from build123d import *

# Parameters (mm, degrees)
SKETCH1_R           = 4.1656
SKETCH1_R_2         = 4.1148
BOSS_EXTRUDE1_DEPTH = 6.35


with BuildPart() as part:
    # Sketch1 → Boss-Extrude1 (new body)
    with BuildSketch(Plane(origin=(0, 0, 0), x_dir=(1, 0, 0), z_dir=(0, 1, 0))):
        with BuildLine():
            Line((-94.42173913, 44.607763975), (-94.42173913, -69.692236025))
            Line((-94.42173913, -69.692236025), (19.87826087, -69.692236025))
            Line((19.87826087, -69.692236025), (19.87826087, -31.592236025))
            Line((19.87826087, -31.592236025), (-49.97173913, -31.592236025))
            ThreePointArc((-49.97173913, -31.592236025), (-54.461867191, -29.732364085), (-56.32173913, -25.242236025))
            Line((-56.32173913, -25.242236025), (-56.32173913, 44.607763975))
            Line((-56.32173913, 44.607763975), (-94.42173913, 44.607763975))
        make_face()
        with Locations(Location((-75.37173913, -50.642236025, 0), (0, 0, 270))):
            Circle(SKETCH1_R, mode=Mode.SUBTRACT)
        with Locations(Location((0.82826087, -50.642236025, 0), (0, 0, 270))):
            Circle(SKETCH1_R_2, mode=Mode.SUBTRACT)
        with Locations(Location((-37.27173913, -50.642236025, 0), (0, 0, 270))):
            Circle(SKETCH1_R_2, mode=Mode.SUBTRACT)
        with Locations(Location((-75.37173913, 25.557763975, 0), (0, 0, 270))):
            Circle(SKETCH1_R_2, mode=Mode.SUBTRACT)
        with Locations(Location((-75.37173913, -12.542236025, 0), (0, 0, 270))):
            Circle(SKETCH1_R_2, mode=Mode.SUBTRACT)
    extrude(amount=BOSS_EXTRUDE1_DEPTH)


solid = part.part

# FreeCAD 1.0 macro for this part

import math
import FreeCAD as App
import Part
import Sketcher

V = App.Vector
Q = App.Units.Quantity

doc = App.newDocument("Part")
body = doc.addObject("PartDesign::Body", "Body")

sketch1 = body.newObject("Sketcher::SketchObject", "Sketch")
sketch1.AttachmentSupport = (doc.getObject("XZ_Plane"), [""])
sketch1.MapMode = "FlatFace"
sketch1.addGeometry(Part.LineSegment(V(-94.4, -44.6, 0), V(-94.4, 69.7, 0)), False)
sketch1.addGeometry(Part.LineSegment(V(-94.4, 69.7, 0), V(19.9, 69.7, 0)), False)
sketch1.addGeometry(Part.LineSegment(V(19.9, 69.7, 0), V(19.9, 31.6, 0)), False)
sketch1.addGeometry(Part.LineSegment(V(19.9, 31.6, 0), V(-50, 31.6, 0)), False)
sketch1.addGeometry(Part.ArcOfCircle(Part.Circle(V(-50, 25.2, 0), V(0, 0, 1), 6.3), math.radians(90), math.radians(180)), False)
sketch1.addGeometry(Part.LineSegment(V(-56.3, 25.2, 0), V(-56.3, -44.6, 0)), False)
sketch1.addGeometry(Part.LineSegment(V(-56.3, -44.6, 0), V(-94.4, -44.6, 0)), False)
sketch1.addGeometry(Part.Circle(V(-75.4, 50.6, 0), V(0, 0, 1), 4.2), False)
sketch1.addGeometry(Part.Circle(V(-37.3, 50.6, 0), V(0, 0, 1), 4.1), False)
sketch1.addGeometry(Part.Circle(V(0.8, 50.6, 0), V(0, 0, 1), 4.1), False)
sketch1.addGeometry(Part.Circle(V(-75.4, 12.5, 0), V(0, 0, 1), 4.1), False)
sketch1.addGeometry(Part.Circle(V(-75.4, -25.6, 0), V(0, 0, 1), 4.1), False)
sketch1.addConstraint(Sketcher.Constraint("Coincident", 0, 2, 1, 1))
sketch1.addConstraint(Sketcher.Constraint("Coincident", 1, 2, 2, 1))
sketch1.addConstraint(Sketcher.Constraint("Coincident", 2, 2, 3, 1))
sketch1.addConstraint(Sketcher.Constraint("Tangent", 3, 2, 4, 1))
sketch1.addConstraint(Sketcher.Constraint("Tangent", 4, 2, 5, 1))
sketch1.addConstraint(Sketcher.Constraint("Coincident", 5, 2, 6, 1))
sketch1.addConstraint(Sketcher.Constraint("Coincident", 6, 2, 0, 1))
sketch1.addConstraint(Sketcher.Constraint("Vertical", 0))
sketch1.addConstraint(Sketcher.Constraint("Horizontal", 1))
sketch1.addConstraint(Sketcher.Constraint("Vertical", 2))
sketch1.addConstraint(Sketcher.Constraint("Horizontal", 3))
sketch1.addConstraint(Sketcher.Constraint("Vertical", 5))
sketch1.addConstraint(Sketcher.Constraint("Horizontal", 6))
sketch1.addConstraint(Sketcher.Constraint("Equal", 8, 9))
sketch1.addConstraint(Sketcher.Constraint("Equal", 9, 10))
sketch1.addConstraint(Sketcher.Constraint("Equal", 10, 11))
sketch1.addConstraint(Sketcher.Constraint("Horizontal", 7, 3, 8, 3))
sketch1.addConstraint(Sketcher.Constraint("Horizontal", 8, 3, 9, 3))
sketch1.addConstraint(Sketcher.Constraint("Vertical", 7, 3, 10, 3))
sketch1.addConstraint(Sketcher.Constraint("Vertical", 10, 3, 11, 3))
sketch1.addConstraint(Sketcher.Constraint("Equal", 1, 0))
sketch1.addConstraint(Sketcher.Constraint("Equal", 6, 2))
sketch1.addConstraint(Sketcher.Constraint("Radius", 4, Q("0.25 in")))
sketch1.addConstraint(Sketcher.Constraint("Diameter", 7, Q("0.328 in")))
sketch1.addConstraint(Sketcher.Constraint("Diameter", 8, Q("0.324 in")))
sketch1.addConstraint(Sketcher.Constraint("DistanceX", 1, 1, 1, 2, Q("4.5 in")))
sketch1.addConstraint(Sketcher.Constraint("DistanceX", 6, 2, 6, 1, Q("1.5 in")))
sketch1.addConstraint(Sketcher.Constraint("DistanceX", 7, 3, 4, 3, Q("1 in")))
sketch1.addConstraint(Sketcher.Constraint("DistanceY", 4, 3, 7, 3, Q("1 in")))
sketch1.addConstraint(Sketcher.Constraint("DistanceX", 4, 3, 9, 3, Q("2 in")))
sketch1.addConstraint(Sketcher.Constraint("DistanceY", 11, 3, 4, 3, Q("2 in")))
sketch1.addConstraint(Sketcher.Constraint("DistanceX", 4, 3, 8, 3, Q("0.5 in")))
sketch1.addConstraint(Sketcher.Constraint("DistanceY", 10, 3, 4, 3, Q("0.5 in")))
sketch1.addConstraint(Sketcher.Constraint("DistanceX", 4, 3, -1, 1, Q("49.971739 mm")))
sketch1.addConstraint(Sketcher.Constraint("DistanceY", -1, 1, 4, 3, Q("25.242236 mm")))
pad1 = body.newObject("PartDesign::Pad", "Pad")
pad1.Profile = sketch1
pad1.Length = Q("0.25 in")
pad1.Reversed = True

doc.recompute()
